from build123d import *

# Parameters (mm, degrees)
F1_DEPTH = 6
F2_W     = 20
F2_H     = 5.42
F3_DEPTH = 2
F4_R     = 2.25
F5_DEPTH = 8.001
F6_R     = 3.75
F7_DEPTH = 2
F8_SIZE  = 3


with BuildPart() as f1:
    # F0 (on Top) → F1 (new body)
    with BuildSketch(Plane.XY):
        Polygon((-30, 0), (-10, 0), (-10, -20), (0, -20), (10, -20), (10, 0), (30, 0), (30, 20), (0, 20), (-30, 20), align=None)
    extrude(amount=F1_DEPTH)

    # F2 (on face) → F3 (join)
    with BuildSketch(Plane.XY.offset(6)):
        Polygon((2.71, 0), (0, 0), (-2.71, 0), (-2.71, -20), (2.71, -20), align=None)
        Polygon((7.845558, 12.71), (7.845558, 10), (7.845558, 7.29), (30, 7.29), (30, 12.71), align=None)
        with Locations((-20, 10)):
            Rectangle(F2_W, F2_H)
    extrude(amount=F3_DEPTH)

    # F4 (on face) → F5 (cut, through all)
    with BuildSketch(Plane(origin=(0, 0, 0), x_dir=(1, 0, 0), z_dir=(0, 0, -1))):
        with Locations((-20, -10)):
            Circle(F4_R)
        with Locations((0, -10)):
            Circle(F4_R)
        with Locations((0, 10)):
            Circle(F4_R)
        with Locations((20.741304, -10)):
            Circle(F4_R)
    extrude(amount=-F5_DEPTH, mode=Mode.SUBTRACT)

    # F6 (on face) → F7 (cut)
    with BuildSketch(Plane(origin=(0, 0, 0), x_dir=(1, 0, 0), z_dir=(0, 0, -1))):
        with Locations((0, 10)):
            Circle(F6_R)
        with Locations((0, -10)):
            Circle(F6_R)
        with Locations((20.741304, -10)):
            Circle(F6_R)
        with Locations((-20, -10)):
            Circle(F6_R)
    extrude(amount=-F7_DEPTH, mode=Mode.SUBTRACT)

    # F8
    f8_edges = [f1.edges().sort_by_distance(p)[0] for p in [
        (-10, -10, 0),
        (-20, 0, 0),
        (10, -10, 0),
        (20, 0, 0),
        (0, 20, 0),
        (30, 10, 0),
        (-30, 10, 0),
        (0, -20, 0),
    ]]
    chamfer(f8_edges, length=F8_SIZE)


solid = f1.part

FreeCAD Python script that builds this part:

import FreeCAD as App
import Part
import Sketcher

V = App.Vector


def edges_at(feature, points):
    """Names of the edges that pass closest to the given points."""
    edges = feature.Shape.Edges
    near = lambda p: min(range(len(edges)), key=lambda i: edges[i].distToShape(Part.Vertex(*p))[0])
    return sorted({f"Edge{near(p) + 1}" for p in points})

doc = App.newDocument("Part")
body = doc.addObject("PartDesign::Body", "Body")

# Sketch on XY plane
sketch1 = body.newObject("Sketcher::SketchObject", "Sketch")
sketch1.AttachmentSupport = (doc.getObject("XY_Plane"), [""])
sketch1.MapMode = "FlatFace"
sketch1.addGeometry(Part.LineSegment(V(-30, 0, 0), V(-10, 0, 0)), False)
sketch1.addGeometry(Part.LineSegment(V(-10, 0, 0), V(-10, -20, 0)), False)
sketch1.addGeometry(Part.LineSegment(V(-10, -20, 0), V(10, -20, 0)), False)
sketch1.addGeometry(Part.LineSegment(V(10, -20, 0), V(10, 0, 0)), False)
sketch1.addGeometry(Part.LineSegment(V(10, 0, 0), V(30, 0, 0)), False)
sketch1.addGeometry(Part.LineSegment(V(30, 0, 0), V(30, 20, 0)), False)
sketch1.addGeometry(Part.LineSegment(V(30, 20, 0), V(-30, 20, 0)), False)
sketch1.addGeometry(Part.LineSegment(V(-30, 20, 0), V(-30, 0, 0)), False)
sketch1.addConstraint(Sketcher.Constraint("Coincident", 0, 2, 1, 1))
sketch1.addConstraint(Sketcher.Constraint("Coincident", 1, 2, 2, 1))
sketch1.addConstraint(Sketcher.Constraint("Coincident", 2, 2, 3, 1))
sketch1.addConstraint(Sketcher.Constraint("Coincident", 3, 2, 4, 1))
sketch1.addConstraint(Sketcher.Constraint("Coincident", 4, 2, 5, 1))
sketch1.addConstraint(Sketcher.Constraint("Coincident", 5, 2, 6, 1))
sketch1.addConstraint(Sketcher.Constraint("Coincident", 6, 2, 7, 1))
sketch1.addConstraint(Sketcher.Constraint("Coincident", 7, 2, 0, 1))
sketch1.addConstraint(Sketcher.Constraint("Horizontal", 0))
sketch1.addConstraint(Sketcher.Constraint("Vertical", 1))
sketch1.addConstraint(Sketcher.Constraint("Horizontal", 2))
sketch1.addConstraint(Sketcher.Constraint("Vertical", 3))
sketch1.addConstraint(Sketcher.Constraint("Horizontal", 4))
sketch1.addConstraint(Sketcher.Constraint("Vertical", 5))
sketch1.addConstraint(Sketcher.Constraint("Horizontal", 6))
sketch1.addConstraint(Sketcher.Constraint("Vertical", 7))
sketch1.addConstraint(Sketcher.Constraint("Symmetric", 0, 2, 3, 2, -1, 1))
sketch1.addConstraint(Sketcher.Constraint("Symmetric", 4, 2, 7, 2, -2))
sketch1.addConstraint(Sketcher.Constraint("Equal", 0, 2))
sketch1.addConstraint(Sketcher.Constraint("Equal", 4, 1))
sketch1.addConstraint(Sketcher.Constraint("Equal", 3, 5))
sketch1.addConstraint(Sketcher.Constraint("DistanceX", 0, 1, 0, 2, 20.0))
pad1 = body.newObject("PartDesign::Pad", "Pad")
pad1.Profile = sketch1
pad1.Length = 6

# Sketch on XY plane
sketch2 = body.newObject("Sketcher::SketchObject", "Sketch001")
sketch2.AttachmentSupport = (doc.getObject("XY_Plane"), [""])
sketch2.MapMode = "FlatFace"
sketch2.AttachmentOffset = App.Placement(V(0, 0, 6), App.Rotation())
sketch2.addGeometry(Part.LineSegment(V(3, 0, 0), V(-3, 0, 0)), False)
sketch2.addGeometry(Part.LineSegment(V(-3, 0, 0), V(-3, -20, 0)), False)
sketch2.addGeometry(Part.LineSegment(V(-3, -20, 0), V(3, -20, 0)), False)
sketch2.addGeometry(Part.LineSegment(V(3, -20, 0), V(3, 0, 0)), False)
sketch2.addGeometry(Part.LineSegment(V(8, 13, 0), V(8, 7, 0)), False)
sketch2.addGeometry(Part.LineSegment(V(8, 7, 0), V(30, 7, 0)), False)
sketch2.addGeometry(Part.LineSegment(V(30, 7, 0), V(30, 13, 0)), False)
sketch2.addGeometry(Part.LineSegment(V(30, 13, 0), V(8, 13, 0)), False)
sketch2.addGeometry(Part.LineSegment(V(-30, 13, 0), V(-30, 7, 0)), False)
sketch2.addGeometry(Part.LineSegment(V(-30, 7, 0), V(-10, 7, 0)), False)
sketch2.addGeometry(Part.LineSegment(V(-10, 7, 0), V(-10, 13, 0)), False)
sketch2.addGeometry(Part.LineSegment(V(-10, 13, 0), V(-30, 13, 0)), False)
sketch2.addConstraint(Sketcher.Constraint("Coincident", 0, 2, 1, 1))
sketch2.addConstraint(Sketcher.Constraint("Coincident", 1, 2, 2, 1))
sketch2.addConstraint(Sketcher.Constraint("Coincident", 2, 2, 3, 1))
sketch2.addConstraint(Sketcher.Constraint("Coincident", 3, 2, 0, 1))
sketch2.addConstraint(Sketcher.Constraint("Coincident", 4, 2, 5, 1))
sketch2.addConstraint(Sketcher.Constraint("Coincident", 5, 2, 6, 1))
sketch2.addConstraint(Sketcher.Constraint("Coincident", 6, 2, 7, 1))
sketch2.addConstraint(Sketcher.Constraint("Coincident", 7, 2, 4, 1))
sketch2.addConstraint(Sketcher.Constraint("Coincident", 8, 2, 9, 1))
sketch2.addConstraint(Sketcher.Constraint("Coincident", 9, 2, 10, 1))
sketch2.addConstraint(Sketcher.Constraint("Coincident", 10, 2, 11, 1))
sketch2.addConstraint(Sketcher.Constraint("Coincident", 11, 2, 8, 1))
sketch2.addConstraint(Sketcher.Constraint("Horizontal", 0))
sketch2.addConstraint(Sketcher.Constraint("Vertical", 1))
sketch2.addConstraint(Sketcher.Constraint("Horizontal", 2))
sketch2.addConstraint(Sketcher.Constraint("Vertical", 3))
sketch2.addConstraint(Sketcher.Constraint("Vertical", 4))
sketch2.addConstraint(Sketcher.Constraint("Horizontal", 5))
sketch2.addConstraint(Sketcher.Constraint("Vertical", 6))
sketch2.addConstraint(Sketcher.Constraint("Horizontal", 7))
sketch2.addConstraint(Sketcher.Constraint("Vertical", 8))
sketch2.addConstraint(Sketcher.Constraint("Horizontal", 9))
sketch2.addConstraint(Sketcher.Constraint("Vertical", 10))
sketch2.addConstraint(Sketcher.Constraint("Horizontal", 11))
sketch2.addConstraint(Sketcher.Constraint("Symmetric", 0, 2, 3, 2, -1, 1))
sketch2.addConstraint(Sketcher.Constraint("Symmetric", 5, 2, 8, 2, -2))
sketch2.addConstraint(Sketcher.Constraint("Horizontal", 7, 2, 10, 2))
sketch2.addConstraint(Sketcher.Constraint("Equal", 11, 1))
sketch2.addConstraint(Sketcher.Constraint("Equal", 2, 4))
sketch2.addConstraint(Sketcher.Constraint("DistanceX", 9, 1, 9, 2, 20.0))
sketch2.addConstraint(Sketcher.Constraint("DistanceX", -1, 1, 5, 2, 30.0))
sketch2.addConstraint(Sketcher.Constraint("DistanceX", 0, 2, 0, 1, 5.42))
sketch2.addConstraint(Sketcher.Constraint("DistanceY", -1, 1, 4, 2, 7.29))
sketch2.addConstraint(Sketcher.Constraint("DistanceX", 5, 1, 5, 2, 22.154442))
pad2 = body.newObject("PartDesign::Pad", "Pad001")
pad2.Profile = sketch2
pad2.Length = 2

# Sketch on XY plane
sketch3 = body.newObject("Sketcher::SketchObject", "Sketch002")
sketch3.AttachmentSupport = (doc.getObject("XY_Plane"), [""])
sketch3.MapMode = "FlatFace"
sketch3.addGeometry(Part.Circle(V(-20, 10, 0), V(0, 0, 1), 2.2), False)
sketch3.addGeometry(Part.Circle(V(0, 10, 0), V(0, 0, 1), 2.2), False)
sketch3.addGeometry(Part.Circle(V(0, -10, 0), V(0, 0, 1), 2.2), False)
sketch3.addGeometry(Part.Circle(V(20.7, 10, 0), V(0, 0, 1), 2.2), False)
sketch3.addConstraint(Sketcher.Constraint("Equal", 0, 1))
sketch3.addConstraint(Sketcher.Constraint("Equal", 1, 2))
sketch3.addConstraint(Sketcher.Constraint("Equal", 2, 3))
sketch3.addConstraint(Sketcher.Constraint("Symmetric", 1, 3, 2, 3, -1, 1))
sketch3.addConstraint(Sketcher.Constraint("PointOnObject", 1, 3, -2))
sketch3.addConstraint(Sketcher.Constraint("Horizontal", 0, 3, 1, 3))
sketch3.addConstraint(Sketcher.Constraint("Horizontal", 1, 3, 3, 3))
sketch3.addConstraint(Sketcher.Constraint("Diameter", 0, 4.5))
sketch3.addConstraint(Sketcher.Constraint("DistanceX", 0, 3, -1, 1, 20.0))
sketch3.addConstraint(Sketcher.Constraint("DistanceY", -1, 1, 0, 3, 10.0))
sketch3.addConstraint(Sketcher.Constraint("DistanceX", -1, 1, 3, 3, 20.741304))
pocket1 = body.newObject("PartDesign::Pocket", "Pocket")
pocket1.Profile = sketch3
pocket1.Type = "ThroughAll"
pocket1.Reversed = True

# Sketch on XY plane
sketch4 = body.newObject("Sketcher::SketchObject", "Sketch003")
sketch4.AttachmentSupport = (doc.getObject("XY_Plane"), [""])
sketch4.MapMode = "FlatFace"
sketch4.addGeometry(Part.Circle(V(0, -10, 0), V(0, 0, 1), 3.8), False)
sketch4.addGeometry(Part.Circle(V(0, 10, 0), V(0, 0, 1), 3.8), False)
sketch4.addGeometry(Part.Circle(V(20.7, 10, 0), V(0, 0, 1), 3.8), False)
sketch4.addGeometry(Part.Circle(V(-20, 10, 0), V(0, 0, 1), 3.8), False)
sketch4.addConstraint(Sketcher.Constraint("Equal", 0, 1))
sketch4.addConstraint(Sketcher.Constraint("Equal", 1, 2))
sketch4.addConstraint(Sketcher.Constraint("Equal", 2, 3))
sketch4.addConstraint(Sketcher.Constraint("Symmetric", 0, 3, 1, 3, -1, 1))
sketch4.addConstraint(Sketcher.Constraint("PointOnObject", 0, 3, -2))
sketch4.addConstraint(Sketcher.Constraint("Horizontal", 1, 3, 2, 3))
sketch4.addConstraint(Sketcher.Constraint("Horizontal", 2, 3, 3, 3))
sketch4.addConstraint(Sketcher.Constraint("Diameter", 0, 7.5))
sketch4.addConstraint(Sketcher.Constraint("DistanceY", 0, 3, -1, 1, 10.0))
sketch4.addConstraint(Sketcher.Constraint("DistanceX", 3, 3, -1, 1, 20.0))
sketch4.addConstraint(Sketcher.Constraint("DistanceX", -1, 1, 2, 3, 20.741304))
pocket2 = body.newObject("PartDesign::Pocket", "Pocket001")
pocket2.Profile = sketch4
pocket2.Length = 2
pocket2.Reversed = True
doc.recompute()

chamfer = body.newObject("PartDesign::Chamfer", "Chamfer")
chamfer.Base = (pocket2, edges_at(pocket2, [
    (-10, -10, 0),
    (-20, 0, 0),
    (10, -10, 0),
    (20, 0, 0),
    (0, 20, 0),
    (30, 10, 0),
    (-30, 10, 0),
    (0, -20, 0),
]))
chamfer.Size = 3

doc.recompute()
